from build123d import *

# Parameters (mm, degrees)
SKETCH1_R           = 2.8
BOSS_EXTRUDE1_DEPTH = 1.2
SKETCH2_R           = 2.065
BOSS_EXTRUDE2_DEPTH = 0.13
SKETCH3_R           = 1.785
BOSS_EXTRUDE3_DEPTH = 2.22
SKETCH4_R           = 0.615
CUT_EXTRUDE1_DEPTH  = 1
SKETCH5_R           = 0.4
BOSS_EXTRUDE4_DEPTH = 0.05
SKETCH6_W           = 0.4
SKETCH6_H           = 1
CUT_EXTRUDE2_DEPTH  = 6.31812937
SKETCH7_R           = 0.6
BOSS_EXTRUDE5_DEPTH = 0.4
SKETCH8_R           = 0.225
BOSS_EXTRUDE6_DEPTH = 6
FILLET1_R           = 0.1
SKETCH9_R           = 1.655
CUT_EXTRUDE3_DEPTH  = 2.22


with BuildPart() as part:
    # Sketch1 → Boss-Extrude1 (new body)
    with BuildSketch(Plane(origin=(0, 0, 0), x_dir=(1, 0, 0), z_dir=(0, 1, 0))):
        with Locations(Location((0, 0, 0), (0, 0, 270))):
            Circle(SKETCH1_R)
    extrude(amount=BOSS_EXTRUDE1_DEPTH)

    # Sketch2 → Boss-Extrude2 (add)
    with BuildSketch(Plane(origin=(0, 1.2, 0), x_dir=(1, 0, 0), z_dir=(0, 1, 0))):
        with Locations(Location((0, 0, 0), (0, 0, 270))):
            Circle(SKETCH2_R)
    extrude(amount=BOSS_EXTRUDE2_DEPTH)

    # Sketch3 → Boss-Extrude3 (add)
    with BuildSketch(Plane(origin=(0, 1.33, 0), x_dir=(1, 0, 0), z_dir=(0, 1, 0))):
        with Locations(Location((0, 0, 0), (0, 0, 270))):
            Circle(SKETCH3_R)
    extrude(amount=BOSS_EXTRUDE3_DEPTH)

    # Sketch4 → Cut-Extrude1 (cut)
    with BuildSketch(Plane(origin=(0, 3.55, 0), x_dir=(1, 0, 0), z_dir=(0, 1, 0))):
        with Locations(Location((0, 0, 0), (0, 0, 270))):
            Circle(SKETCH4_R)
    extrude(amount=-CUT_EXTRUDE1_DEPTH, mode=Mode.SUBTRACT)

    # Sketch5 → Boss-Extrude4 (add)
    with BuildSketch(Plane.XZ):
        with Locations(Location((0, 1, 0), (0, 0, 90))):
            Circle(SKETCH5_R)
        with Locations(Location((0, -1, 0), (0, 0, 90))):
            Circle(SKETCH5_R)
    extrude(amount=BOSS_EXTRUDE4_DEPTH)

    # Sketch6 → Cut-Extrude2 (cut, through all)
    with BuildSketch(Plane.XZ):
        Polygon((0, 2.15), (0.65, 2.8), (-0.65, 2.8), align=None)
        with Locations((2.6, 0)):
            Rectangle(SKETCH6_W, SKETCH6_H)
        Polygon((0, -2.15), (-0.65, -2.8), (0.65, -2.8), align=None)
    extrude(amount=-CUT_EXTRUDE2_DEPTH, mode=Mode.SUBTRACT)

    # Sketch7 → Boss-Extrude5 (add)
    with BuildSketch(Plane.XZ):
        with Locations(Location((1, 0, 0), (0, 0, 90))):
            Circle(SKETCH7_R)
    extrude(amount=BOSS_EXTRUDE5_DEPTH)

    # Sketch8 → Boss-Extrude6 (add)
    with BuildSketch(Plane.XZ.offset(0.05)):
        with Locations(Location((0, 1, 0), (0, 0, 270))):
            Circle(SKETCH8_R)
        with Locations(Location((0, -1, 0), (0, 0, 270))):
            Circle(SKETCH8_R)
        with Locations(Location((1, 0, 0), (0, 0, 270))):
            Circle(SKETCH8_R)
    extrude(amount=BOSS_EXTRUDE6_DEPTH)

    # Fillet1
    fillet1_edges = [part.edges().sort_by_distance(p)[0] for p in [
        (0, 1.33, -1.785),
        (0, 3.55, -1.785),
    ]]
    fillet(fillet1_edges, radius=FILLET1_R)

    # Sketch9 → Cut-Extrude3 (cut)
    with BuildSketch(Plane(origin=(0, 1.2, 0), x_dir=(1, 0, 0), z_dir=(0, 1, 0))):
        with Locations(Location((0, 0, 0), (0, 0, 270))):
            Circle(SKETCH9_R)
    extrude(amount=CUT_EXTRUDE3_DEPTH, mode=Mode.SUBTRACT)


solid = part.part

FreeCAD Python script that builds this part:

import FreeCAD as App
import Part
import Sketcher

V = App.Vector


def edges_at(feature, points):
    """Names of the edges that pass closest to the given points."""
    edges = feature.Shape.Edges
    near = lambda p: min(range(len(edges)), key=lambda i: edges[i].distToShape(Part.Vertex(*p))[0])
    return sorted({f"Edge{near(p) + 1}" for p in points})


def add_polygon(sketch, points):
    """Adds a closed chain of lines whose ends are joined by coincident constraints."""
    first, n = sketch.GeometryCount, len(points)
    for a, b in zip(points, points[1:] + points[:1]):
        sketch.addGeometry(Part.LineSegment(App.Vector(*a, 0), App.Vector(*b, 0)), False)
    for i in range(n):
        sketch.addConstraint(Sketcher.Constraint("Coincident", first + i, 2, first + (i + 1) % n, 1))

doc = App.newDocument("Part")
body = doc.addObject("PartDesign::Body", "Body")

sketch1 = body.newObject("Sketcher::SketchObject", "Sketch")
sketch1.AttachmentSupport = (doc.getObject("XZ_Plane"), [""])
sketch1.MapMode = "FlatFace"
sketch1.addGeometry(Part.Circle(V(0, 0, 0), V(0, 0, 1), 2.8), False)
sketch1.addConstraint([
    Sketcher.Constraint("Coincident", 0, 3, -1, 1),
    Sketcher.Constraint("Diameter", 0, 5.6),
])
pad1 = body.newObject("PartDesign::Pad", "Pad")
pad1.Profile = sketch1
pad1.Length = 1.2
pad1.Reversed = True

sketch2 = body.newObject("Sketcher::SketchObject", "Sketch001")
sketch2.AttachmentSupport = (doc.getObject("XZ_Plane"), [""])
sketch2.MapMode = "FlatFace"
sketch2.AttachmentOffset = App.Placement(V(0, 0, -1.2), App.Rotation())
sketch2.addGeometry(Part.Circle(V(0, 0, 0), V(0, 0, 1), 2.1), False)
sketch2.addConstraint([
    Sketcher.Constraint("Coincident", 0, 3, -1, 1),
    Sketcher.Constraint("Diameter", 0, 4.13),
])
pad2 = body.newObject("PartDesign::Pad", "Pad001")
pad2.Profile = sketch2
pad2.Length = 0.13
pad2.Reversed = True

sketch3 = body.newObject("Sketcher::SketchObject", "Sketch002")
sketch3.AttachmentSupport = (doc.getObject("XZ_Plane"), [""])
sketch3.MapMode = "FlatFace"
sketch3.AttachmentOffset = App.Placement(V(0, 0, -1.33), App.Rotation())
sketch3.addGeometry(Part.Circle(V(0, 0, 0), V(0, 0, 1), 1.8), False)
sketch3.addConstraint([
    Sketcher.Constraint("Coincident", 0, 3, -1, 1),
    Sketcher.Constraint("Diameter", 0, 3.57),
])
pad3 = body.newObject("PartDesign::Pad", "Pad002")
pad3.Profile = sketch3
pad3.Length = 2.22
pad3.Reversed = True

sketch4 = body.newObject("Sketcher::SketchObject", "Sketch003")
sketch4.AttachmentSupport = (doc.getObject("XZ_Plane"), [""])
sketch4.MapMode = "FlatFace"
sketch4.AttachmentOffset = App.Placement(V(0, 0, -3.55), App.Rotation())
sketch4.addGeometry(Part.Circle(V(0, 0, 0), V(0, 0, 1), 0.6), False)
sketch4.addConstraint([
    Sketcher.Constraint("Coincident", 0, 3, -1, 1),
    Sketcher.Constraint("Diameter", 0, 1.23),
])
pocket1 = body.newObject("PartDesign::Pocket", "Pocket")
pocket1.Profile = sketch4
pocket1.Length = 1
pocket1.Reversed = True

sketch5 = body.newObject("Sketcher::SketchObject", "Sketch004")
sketch5.AttachmentSupport = (doc.getObject("XZ_Plane"), [""])
sketch5.MapMode = "FlatFace"
sketch5.addGeometry([
    Part.Circle(V(0, 1, 0), V(0, 0, 1), 0.4),
    Part.Circle(V(0, -1, 0), V(0, 0, 1), 0.4),
], False)
sketch5.addConstraint([
    Sketcher.Constraint("Equal", 0, 1),
    Sketcher.Constraint("Symmetric", 0, 3, 1, 3, -1, 1),
    Sketcher.Constraint("PointOnObject", 0, 3, -2),
    Sketcher.Constraint("Diameter", 0, 0.8),
    Sketcher.Constraint("DistanceY", -1, 1, 0, 3, 1.0),
])
pad4 = body.newObject("PartDesign::Pad", "Pad003")
pad4.Profile = sketch5
pad4.Length = 0.05

sketch6 = body.newObject("Sketcher::SketchObject", "Sketch005")
sketch6.AttachmentSupport = (doc.getObject("XZ_Plane"), [""])
sketch6.MapMode = "FlatFace"
add_polygon(sketch6, [(0, 2.15), (0.65, 2.8), (-0.65, 2.8)])
add_polygon(sketch6, [(2.4, 0.5), (2.4, -0.5), (2.8, -0.5), (2.8, 0.5)])
add_polygon(sketch6, [(0, -2.15), (-0.65, -2.8), (0.65, -2.8)])
sketch6.addConstraint([
    Sketcher.Constraint("Horizontal", 1),
    Sketcher.Constraint("Vertical", 3),
    Sketcher.Constraint("Horizontal", 4),
    Sketcher.Constraint("Vertical", 5),
    Sketcher.Constraint("Horizontal", 6),
    Sketcher.Constraint("Horizontal", 8),
    Sketcher.Constraint("Symmetric", 0, 2, 7, 2, -1, 1),
    Sketcher.Constraint("Symmetric", 2, 2, 9, 2, -1, 1),
    Sketcher.Constraint("PointOnObject", 2, 2, -2),
    Sketcher.Constraint("Perpendicular", 0, 2),
    Sketcher.Constraint("Perpendicular", 7, 9),
    Sketcher.Constraint("Vertical", 1, 2, 7, 2),
    Sketcher.Constraint("DistanceY", 3, 2, 3, 1, 1.0),
    Sketcher.Constraint("DistanceX", 1, 2, 1, 1, 1.3),
    Sketcher.Constraint("DistanceX", 4, 1, 4, 2, 0.4),
    Sketcher.Constraint("DistanceY", -1, 1, 0, 2, 2.8),
    Sketcher.Constraint("DistanceX", -1, 1, 3, 2, 2.4),
    Sketcher.Constraint("DistanceY", 3, 2, -1, 1, 0.5),
])
pocket2 = body.newObject("PartDesign::Pocket", "Pocket001")
pocket2.Profile = sketch6
pocket2.Type = "ThroughAll"

sketch7 = body.newObject("Sketcher::SketchObject", "Sketch006")
sketch7.AttachmentSupport = (doc.getObject("XZ_Plane"), [""])
sketch7.MapMode = "FlatFace"
sketch7.addGeometry(Part.Circle(V(1, 0, 0), V(0, 0, 1), 0.6), False)
sketch7.addConstraint([
    Sketcher.Constraint("PointOnObject", 0, 3, -1),
    Sketcher.Constraint("Diameter", 0, 1.2),
    Sketcher.Constraint("DistanceX", -1, 1, 0, 3, 1.0),
])
pad5 = body.newObject("PartDesign::Pad", "Pad004")
pad5.Profile = sketch7
pad5.Length = 0.4

sketch8 = body.newObject("Sketcher::SketchObject", "Sketch007")
sketch8.AttachmentSupport = (doc.getObject("XZ_Plane"), [""])
sketch8.MapMode = "FlatFace"
sketch8.AttachmentOffset = App.Placement(V(0, 0, 0.05), App.Rotation())
sketch8.addGeometry([
    Part.Circle(V(0, 1, 0), V(0, 0, 1), 0.23),
    Part.Circle(V(0, -1, 0), V(0, 0, 1), 0.23),
    Part.Circle(V(1, 0, 0), V(0, 0, 1), 0.23),
], False)
sketch8.addConstraint([
    Sketcher.Constraint("Equal", 0, 1),
    Sketcher.Constraint("Equal", 1, 2),
    Sketcher.Constraint("Symmetric", 0, 3, 1, 3, -1, 1),
    Sketcher.Constraint("PointOnObject", 0, 3, -2),
    Sketcher.Constraint("PointOnObject", 2, 3, -1),
    Sketcher.Constraint("Diameter", 0, 0.45),
    Sketcher.Constraint("DistanceY", -1, 1, 0, 3, 1.0),
    Sketcher.Constraint("DistanceX", -1, 1, 2, 3, 1.0),
])
pad6 = body.newObject("PartDesign::Pad", "Pad005")
pad6.Profile = sketch8
pad6.Length = 6
doc.recompute()

fillet = body.newObject("PartDesign::Fillet", "Fillet")
fillet.Base = (pad6, edges_at(pad6, [(0, 1.33, -1.785), (0, 3.55, -1.785)]))
fillet.Radius = 0.1

sketch9 = body.newObject("Sketcher::SketchObject", "Sketch008")
sketch9.AttachmentSupport = (doc.getObject("XZ_Plane"), [""])
sketch9.MapMode = "FlatFace"
sketch9.AttachmentOffset = App.Placement(V(0, 0, -1.2), App.Rotation())
sketch9.addGeometry(Part.Circle(V(0, 0, 0), V(0, 0, 1), 1.7), False)
sketch9.addConstraint([
    Sketcher.Constraint("Coincident", 0, 3, -1, 1),
    Sketcher.Constraint("Diameter", 0, 3.31),
])
pocket3 = body.newObject("PartDesign::Pocket", "Pocket002")
pocket3.Profile = sketch9
pocket3.Length = 2.22

doc.recompute()
